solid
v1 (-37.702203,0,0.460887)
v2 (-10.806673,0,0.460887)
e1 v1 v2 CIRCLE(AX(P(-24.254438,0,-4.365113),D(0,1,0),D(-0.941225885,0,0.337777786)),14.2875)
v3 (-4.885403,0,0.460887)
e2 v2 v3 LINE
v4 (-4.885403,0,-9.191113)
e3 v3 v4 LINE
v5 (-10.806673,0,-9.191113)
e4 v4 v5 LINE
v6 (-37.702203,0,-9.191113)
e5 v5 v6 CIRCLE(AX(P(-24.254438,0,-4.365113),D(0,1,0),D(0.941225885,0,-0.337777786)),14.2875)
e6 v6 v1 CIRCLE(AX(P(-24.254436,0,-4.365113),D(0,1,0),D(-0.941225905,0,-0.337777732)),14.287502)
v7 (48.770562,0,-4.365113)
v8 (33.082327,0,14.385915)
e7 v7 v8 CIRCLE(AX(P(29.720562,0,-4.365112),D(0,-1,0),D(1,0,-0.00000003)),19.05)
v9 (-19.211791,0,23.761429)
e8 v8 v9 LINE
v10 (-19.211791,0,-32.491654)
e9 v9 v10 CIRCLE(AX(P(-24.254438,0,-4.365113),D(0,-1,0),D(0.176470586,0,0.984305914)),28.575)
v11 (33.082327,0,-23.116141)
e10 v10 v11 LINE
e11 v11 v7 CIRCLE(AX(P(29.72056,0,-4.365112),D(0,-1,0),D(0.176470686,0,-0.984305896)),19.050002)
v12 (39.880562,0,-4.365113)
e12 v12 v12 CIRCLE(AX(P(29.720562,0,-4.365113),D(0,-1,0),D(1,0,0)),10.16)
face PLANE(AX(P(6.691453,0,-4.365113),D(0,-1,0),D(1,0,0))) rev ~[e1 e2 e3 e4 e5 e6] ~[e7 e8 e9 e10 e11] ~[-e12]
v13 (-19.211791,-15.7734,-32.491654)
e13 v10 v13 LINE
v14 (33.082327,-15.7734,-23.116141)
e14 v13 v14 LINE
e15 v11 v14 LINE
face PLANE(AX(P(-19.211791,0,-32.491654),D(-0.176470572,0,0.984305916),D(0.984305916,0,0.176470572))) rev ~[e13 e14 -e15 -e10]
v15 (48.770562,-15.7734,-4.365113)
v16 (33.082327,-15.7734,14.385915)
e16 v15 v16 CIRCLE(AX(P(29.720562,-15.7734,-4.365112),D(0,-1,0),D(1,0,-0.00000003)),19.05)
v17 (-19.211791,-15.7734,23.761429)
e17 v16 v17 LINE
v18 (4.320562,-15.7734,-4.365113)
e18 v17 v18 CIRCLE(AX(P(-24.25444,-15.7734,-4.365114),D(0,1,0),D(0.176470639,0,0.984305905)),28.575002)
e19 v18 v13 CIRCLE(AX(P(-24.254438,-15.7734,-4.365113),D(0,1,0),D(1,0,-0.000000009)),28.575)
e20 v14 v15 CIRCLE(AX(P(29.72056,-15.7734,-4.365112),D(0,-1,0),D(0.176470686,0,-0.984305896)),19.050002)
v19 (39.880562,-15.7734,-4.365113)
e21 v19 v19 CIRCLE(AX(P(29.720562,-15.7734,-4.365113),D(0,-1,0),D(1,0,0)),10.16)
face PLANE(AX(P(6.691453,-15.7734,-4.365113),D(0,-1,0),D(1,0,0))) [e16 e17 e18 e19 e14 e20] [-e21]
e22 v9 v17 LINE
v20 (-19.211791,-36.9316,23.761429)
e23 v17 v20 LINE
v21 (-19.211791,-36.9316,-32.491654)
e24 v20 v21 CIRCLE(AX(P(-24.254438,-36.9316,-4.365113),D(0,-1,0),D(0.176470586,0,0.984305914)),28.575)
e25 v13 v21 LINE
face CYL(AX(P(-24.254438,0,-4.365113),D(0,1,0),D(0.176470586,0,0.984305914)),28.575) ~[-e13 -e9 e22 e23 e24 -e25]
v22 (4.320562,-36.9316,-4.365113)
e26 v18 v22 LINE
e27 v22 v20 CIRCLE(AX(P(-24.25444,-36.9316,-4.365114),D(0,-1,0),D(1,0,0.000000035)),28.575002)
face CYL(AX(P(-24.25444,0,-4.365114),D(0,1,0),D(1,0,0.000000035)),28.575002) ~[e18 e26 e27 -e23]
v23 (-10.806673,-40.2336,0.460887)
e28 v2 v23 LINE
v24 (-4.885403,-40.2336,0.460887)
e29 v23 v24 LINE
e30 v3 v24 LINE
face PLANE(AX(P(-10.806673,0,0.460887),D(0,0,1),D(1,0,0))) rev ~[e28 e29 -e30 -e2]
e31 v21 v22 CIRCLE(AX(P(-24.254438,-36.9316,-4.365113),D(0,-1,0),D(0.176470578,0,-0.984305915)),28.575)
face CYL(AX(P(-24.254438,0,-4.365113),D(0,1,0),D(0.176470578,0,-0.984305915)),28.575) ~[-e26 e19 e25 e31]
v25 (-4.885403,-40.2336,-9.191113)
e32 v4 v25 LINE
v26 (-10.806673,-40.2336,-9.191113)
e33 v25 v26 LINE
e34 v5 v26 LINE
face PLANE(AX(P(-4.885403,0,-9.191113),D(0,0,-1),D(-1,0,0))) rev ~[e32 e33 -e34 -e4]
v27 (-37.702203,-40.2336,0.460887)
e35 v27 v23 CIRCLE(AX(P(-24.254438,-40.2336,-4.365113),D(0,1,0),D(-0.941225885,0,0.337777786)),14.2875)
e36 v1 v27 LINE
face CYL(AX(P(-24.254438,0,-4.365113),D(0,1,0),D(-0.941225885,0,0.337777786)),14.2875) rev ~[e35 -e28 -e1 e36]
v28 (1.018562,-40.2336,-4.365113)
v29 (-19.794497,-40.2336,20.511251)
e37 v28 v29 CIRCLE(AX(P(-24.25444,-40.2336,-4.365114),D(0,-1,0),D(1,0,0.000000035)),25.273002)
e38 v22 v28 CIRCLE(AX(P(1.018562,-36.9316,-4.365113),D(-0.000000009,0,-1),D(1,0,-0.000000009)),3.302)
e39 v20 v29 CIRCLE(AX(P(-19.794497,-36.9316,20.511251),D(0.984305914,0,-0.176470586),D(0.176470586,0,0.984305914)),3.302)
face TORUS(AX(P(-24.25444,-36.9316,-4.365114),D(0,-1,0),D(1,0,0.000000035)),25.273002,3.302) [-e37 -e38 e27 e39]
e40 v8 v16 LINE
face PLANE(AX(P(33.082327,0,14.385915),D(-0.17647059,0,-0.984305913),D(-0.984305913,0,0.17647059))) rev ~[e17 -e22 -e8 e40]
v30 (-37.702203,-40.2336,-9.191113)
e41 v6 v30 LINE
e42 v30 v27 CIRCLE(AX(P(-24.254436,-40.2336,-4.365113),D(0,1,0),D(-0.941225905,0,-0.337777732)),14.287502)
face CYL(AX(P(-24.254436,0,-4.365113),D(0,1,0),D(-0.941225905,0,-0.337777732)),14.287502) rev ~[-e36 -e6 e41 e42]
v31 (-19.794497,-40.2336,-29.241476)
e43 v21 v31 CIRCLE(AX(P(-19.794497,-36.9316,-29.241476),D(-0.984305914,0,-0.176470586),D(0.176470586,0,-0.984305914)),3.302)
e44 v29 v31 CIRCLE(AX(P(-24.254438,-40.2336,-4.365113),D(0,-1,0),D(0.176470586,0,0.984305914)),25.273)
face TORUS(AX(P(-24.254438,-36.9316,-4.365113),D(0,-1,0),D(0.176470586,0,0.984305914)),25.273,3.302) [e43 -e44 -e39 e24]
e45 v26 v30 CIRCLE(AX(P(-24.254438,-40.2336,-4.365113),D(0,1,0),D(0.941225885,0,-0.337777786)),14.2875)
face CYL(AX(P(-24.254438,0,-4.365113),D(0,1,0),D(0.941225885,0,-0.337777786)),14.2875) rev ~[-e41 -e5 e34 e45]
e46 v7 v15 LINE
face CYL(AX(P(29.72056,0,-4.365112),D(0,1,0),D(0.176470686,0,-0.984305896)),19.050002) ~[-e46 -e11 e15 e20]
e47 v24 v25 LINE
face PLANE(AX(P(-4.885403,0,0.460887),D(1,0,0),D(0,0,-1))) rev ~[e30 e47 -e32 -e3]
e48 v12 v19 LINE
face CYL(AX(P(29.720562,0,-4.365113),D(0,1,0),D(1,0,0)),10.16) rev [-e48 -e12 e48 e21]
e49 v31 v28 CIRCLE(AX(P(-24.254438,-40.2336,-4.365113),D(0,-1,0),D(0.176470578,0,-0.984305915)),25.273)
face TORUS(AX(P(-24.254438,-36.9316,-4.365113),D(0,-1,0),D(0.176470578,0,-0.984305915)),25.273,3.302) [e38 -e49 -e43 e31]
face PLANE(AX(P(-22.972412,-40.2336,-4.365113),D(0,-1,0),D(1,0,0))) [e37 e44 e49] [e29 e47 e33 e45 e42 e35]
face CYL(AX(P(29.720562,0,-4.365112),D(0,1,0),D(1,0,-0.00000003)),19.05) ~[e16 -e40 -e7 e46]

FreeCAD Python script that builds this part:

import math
import FreeCAD as App
import Part
import Sketcher
from FreeCAD import Vector
Q = App.Units.Quantity


def edges_at(feature, points):
    """Names of the edges that pass closest to the given points."""
    edges = feature.Shape.Edges
    near = lambda p: min(range(len(edges)), key=lambda i: edges[i].distToShape(Part.Vertex(*p))[0])
    return sorted({f"Edge{near(p) + 1}" for p in points})

doc = App.newDocument("Part")
body = doc.addObject("PartDesign::Body", "Body")

sketch1 = body.newObject("Sketcher::SketchObject", "Sketch")
sketch1.AttachmentSupport = (doc.getObject("XZ_Plane"), [""])
sketch1.MapMode = "FlatFace"
sketch1.addGeometry([
    Part.ArcOfCircle(Part.Circle(Vector(-24, -4, 0), Vector(0, 0, 1), 29), math.radians(-80), math.radians(0)),
    Part.ArcOfCircle(Part.Circle(Vector(-24, -4, 0), Vector(0, 0, 1), 29), math.radians(0), math.radians(80)),
    Part.ArcOfCircle(Part.Circle(Vector(-24, -4, 0), Vector(0, 0, 1), 29), math.radians(80), math.radians(280)),
    Part.ArcOfCircle(Part.Circle(Vector(-24, -4, 0), Vector(0, 0, 1), 14), math.radians(-160), math.radians(-20)),
    Part.ArcOfCircle(Part.Circle(Vector(-24, -4, 0), Vector(0, 0, 1), 14), math.radians(160), math.radians(200)),
    Part.ArcOfCircle(Part.Circle(Vector(-24, -4, 0), Vector(0, 0, 1), 14), math.radians(20), math.radians(160)),
    Part.LineSegment(Vector(-11, 0, 0), Vector(-5, 0, 0)),
    Part.LineSegment(Vector(-5, 0, 0), Vector(-5, -9, 0)),
    Part.LineSegment(Vector(-5, -9, 0), Vector(-11, -9, 0)),
], False)
sketch1.addConstraint([
    Sketcher.Constraint("Tangent", 0, 2, 1, 1),
    Sketcher.Constraint("Tangent", 1, 2, 2, 1),
    Sketcher.Constraint("Tangent", 2, 2, 0, 1),
    Sketcher.Constraint("Tangent", 3, 1, 4, 2),
    Sketcher.Constraint("Tangent", 4, 1, 5, 2),
    Sketcher.Constraint("Coincident", 5, 1, 6, 1),
    Sketcher.Constraint("Coincident", 6, 2, 7, 1),
    Sketcher.Constraint("Coincident", 7, 2, 8, 1),
    Sketcher.Constraint("Coincident", 8, 2, 3, 2),
    Sketcher.Constraint("Horizontal", 6),
    Sketcher.Constraint("Vertical", 7),
    Sketcher.Constraint("Horizontal", 8),
    Sketcher.Constraint("Coincident", 3, 3, 0, 3),
    Sketcher.Constraint("Coincident", 5, 3, 0, 3),
    Sketcher.Constraint("Horizontal", 5, 3, 0, 2),
    Sketcher.Constraint("Horizontal", 4, 1, 5, 1),
    Sketcher.Constraint("Horizontal", 3, 1, 7, 2),
    Sketcher.Constraint("Vertical", 1, 2, 2, 2),
    Sketcher.Constraint("Vertical", 3, 1, 4, 1),
    Sketcher.Constraint("Radius", 0, Q("1.125 in")),
    Sketcher.Constraint("Radius", 3, Q("0.5625 in")),
    Sketcher.Constraint("DistanceY", 7, 2, 7, 1, Q("0.38 in")),
    Sketcher.Constraint("DistanceX", 6, 1, 6, 2, 5.92127),
    Sketcher.Constraint("DistanceX", 1, 3, -1, 1, 24.25444),
    Sketcher.Constraint("DistanceX", 1, 2, -1, 1, 19.211791),
    Sketcher.Constraint("DistanceY", -1, 1, 1, 2, 23.761429),
])
pad1 = body.newObject("PartDesign::Pad", "Pad")
pad1.Profile = sketch1
pad1.Length = Q("1.584 in")

sketch2 = body.newObject("Sketcher::SketchObject", "Sketch001")
sketch2.AttachmentSupport = (doc.getObject("XZ_Plane"), [""])
sketch2.MapMode = "FlatFace"
sketch2.addGeometry([
    Part.ArcOfCircle(Part.Circle(Vector(-24, -4, 0), Vector(0, 0, 1), 29), math.radians(0), math.radians(80)),
    Part.ArcOfCircle(Part.Circle(Vector(-24, -4, 0), Vector(0, 0, 1), 29), math.radians(-80), math.radians(0)),
    Part.LineSegment(Vector(-19, -32, 0), Vector(33, -23, 0)),
    Part.ArcOfCircle(Part.Circle(Vector(30, -4, 0), Vector(0, 0, 1), 19), math.radians(-80), math.radians(0)),
    Part.ArcOfCircle(Part.Circle(Vector(30, -4, 0), Vector(0, 0, 1), 19), math.radians(0), math.radians(80)),
    Part.LineSegment(Vector(33, 14, 0), Vector(-19, 24, 0)),
    Part.Circle(Vector(30, -4, 0), Vector(0, 0, 1), 10),
], False)
sketch2.addConstraint([
    Sketcher.Constraint("Tangent", 0, 1, 1, 2),
    Sketcher.Constraint("Tangent", 1, 1, 2, 1),
    Sketcher.Constraint("Tangent", 2, 2, 3, 1),
    Sketcher.Constraint("Tangent", 3, 2, 4, 1),
    Sketcher.Constraint("Tangent", 4, 2, 5, 1),
    Sketcher.Constraint("Tangent", 5, 2, 0, 2),
    Sketcher.Constraint("Coincident", 6, 3, 3, 3),
    Sketcher.Constraint("Horizontal", 1, 3, 3, 3),
    Sketcher.Constraint("Horizontal", 6, 3, 0, 1),
    Sketcher.Constraint("Horizontal", 0, 1, 3, 2),
    Sketcher.Constraint("Vertical", 2, 2, 4, 2),
    Sketcher.Constraint("Vertical", 1, 1, 5, 2),
    Sketcher.Constraint("Diameter", 6, Q("0.8 in")),
    Sketcher.Constraint("Radius", 3, Q("0.7500001 in")),
    Sketcher.Constraint("Radius", 0, Q("1.1250001 in")),
    Sketcher.Constraint("DistanceX", 0, 1, 3, 3, Q("0.9999999 in")),
    Sketcher.Constraint("DistanceX", 0, 3, -1, 1, 24.25444),
    Sketcher.Constraint("DistanceY", 3, 3, -1, 1, 4.365112),
])
pad2 = body.newObject("PartDesign::Pad", "Pad001")
pad2.Profile = sketch2
pad2.Length = Q("0.621 in")
doc.recompute()

fillet = body.newObject("PartDesign::Fillet", "Fillet")
fillet.Base = (pad2, edges_at(pad2, [(-52.829, -40.234, -4.365)]))
fillet.Radius = Q("0.13 in")

doc.recompute()
